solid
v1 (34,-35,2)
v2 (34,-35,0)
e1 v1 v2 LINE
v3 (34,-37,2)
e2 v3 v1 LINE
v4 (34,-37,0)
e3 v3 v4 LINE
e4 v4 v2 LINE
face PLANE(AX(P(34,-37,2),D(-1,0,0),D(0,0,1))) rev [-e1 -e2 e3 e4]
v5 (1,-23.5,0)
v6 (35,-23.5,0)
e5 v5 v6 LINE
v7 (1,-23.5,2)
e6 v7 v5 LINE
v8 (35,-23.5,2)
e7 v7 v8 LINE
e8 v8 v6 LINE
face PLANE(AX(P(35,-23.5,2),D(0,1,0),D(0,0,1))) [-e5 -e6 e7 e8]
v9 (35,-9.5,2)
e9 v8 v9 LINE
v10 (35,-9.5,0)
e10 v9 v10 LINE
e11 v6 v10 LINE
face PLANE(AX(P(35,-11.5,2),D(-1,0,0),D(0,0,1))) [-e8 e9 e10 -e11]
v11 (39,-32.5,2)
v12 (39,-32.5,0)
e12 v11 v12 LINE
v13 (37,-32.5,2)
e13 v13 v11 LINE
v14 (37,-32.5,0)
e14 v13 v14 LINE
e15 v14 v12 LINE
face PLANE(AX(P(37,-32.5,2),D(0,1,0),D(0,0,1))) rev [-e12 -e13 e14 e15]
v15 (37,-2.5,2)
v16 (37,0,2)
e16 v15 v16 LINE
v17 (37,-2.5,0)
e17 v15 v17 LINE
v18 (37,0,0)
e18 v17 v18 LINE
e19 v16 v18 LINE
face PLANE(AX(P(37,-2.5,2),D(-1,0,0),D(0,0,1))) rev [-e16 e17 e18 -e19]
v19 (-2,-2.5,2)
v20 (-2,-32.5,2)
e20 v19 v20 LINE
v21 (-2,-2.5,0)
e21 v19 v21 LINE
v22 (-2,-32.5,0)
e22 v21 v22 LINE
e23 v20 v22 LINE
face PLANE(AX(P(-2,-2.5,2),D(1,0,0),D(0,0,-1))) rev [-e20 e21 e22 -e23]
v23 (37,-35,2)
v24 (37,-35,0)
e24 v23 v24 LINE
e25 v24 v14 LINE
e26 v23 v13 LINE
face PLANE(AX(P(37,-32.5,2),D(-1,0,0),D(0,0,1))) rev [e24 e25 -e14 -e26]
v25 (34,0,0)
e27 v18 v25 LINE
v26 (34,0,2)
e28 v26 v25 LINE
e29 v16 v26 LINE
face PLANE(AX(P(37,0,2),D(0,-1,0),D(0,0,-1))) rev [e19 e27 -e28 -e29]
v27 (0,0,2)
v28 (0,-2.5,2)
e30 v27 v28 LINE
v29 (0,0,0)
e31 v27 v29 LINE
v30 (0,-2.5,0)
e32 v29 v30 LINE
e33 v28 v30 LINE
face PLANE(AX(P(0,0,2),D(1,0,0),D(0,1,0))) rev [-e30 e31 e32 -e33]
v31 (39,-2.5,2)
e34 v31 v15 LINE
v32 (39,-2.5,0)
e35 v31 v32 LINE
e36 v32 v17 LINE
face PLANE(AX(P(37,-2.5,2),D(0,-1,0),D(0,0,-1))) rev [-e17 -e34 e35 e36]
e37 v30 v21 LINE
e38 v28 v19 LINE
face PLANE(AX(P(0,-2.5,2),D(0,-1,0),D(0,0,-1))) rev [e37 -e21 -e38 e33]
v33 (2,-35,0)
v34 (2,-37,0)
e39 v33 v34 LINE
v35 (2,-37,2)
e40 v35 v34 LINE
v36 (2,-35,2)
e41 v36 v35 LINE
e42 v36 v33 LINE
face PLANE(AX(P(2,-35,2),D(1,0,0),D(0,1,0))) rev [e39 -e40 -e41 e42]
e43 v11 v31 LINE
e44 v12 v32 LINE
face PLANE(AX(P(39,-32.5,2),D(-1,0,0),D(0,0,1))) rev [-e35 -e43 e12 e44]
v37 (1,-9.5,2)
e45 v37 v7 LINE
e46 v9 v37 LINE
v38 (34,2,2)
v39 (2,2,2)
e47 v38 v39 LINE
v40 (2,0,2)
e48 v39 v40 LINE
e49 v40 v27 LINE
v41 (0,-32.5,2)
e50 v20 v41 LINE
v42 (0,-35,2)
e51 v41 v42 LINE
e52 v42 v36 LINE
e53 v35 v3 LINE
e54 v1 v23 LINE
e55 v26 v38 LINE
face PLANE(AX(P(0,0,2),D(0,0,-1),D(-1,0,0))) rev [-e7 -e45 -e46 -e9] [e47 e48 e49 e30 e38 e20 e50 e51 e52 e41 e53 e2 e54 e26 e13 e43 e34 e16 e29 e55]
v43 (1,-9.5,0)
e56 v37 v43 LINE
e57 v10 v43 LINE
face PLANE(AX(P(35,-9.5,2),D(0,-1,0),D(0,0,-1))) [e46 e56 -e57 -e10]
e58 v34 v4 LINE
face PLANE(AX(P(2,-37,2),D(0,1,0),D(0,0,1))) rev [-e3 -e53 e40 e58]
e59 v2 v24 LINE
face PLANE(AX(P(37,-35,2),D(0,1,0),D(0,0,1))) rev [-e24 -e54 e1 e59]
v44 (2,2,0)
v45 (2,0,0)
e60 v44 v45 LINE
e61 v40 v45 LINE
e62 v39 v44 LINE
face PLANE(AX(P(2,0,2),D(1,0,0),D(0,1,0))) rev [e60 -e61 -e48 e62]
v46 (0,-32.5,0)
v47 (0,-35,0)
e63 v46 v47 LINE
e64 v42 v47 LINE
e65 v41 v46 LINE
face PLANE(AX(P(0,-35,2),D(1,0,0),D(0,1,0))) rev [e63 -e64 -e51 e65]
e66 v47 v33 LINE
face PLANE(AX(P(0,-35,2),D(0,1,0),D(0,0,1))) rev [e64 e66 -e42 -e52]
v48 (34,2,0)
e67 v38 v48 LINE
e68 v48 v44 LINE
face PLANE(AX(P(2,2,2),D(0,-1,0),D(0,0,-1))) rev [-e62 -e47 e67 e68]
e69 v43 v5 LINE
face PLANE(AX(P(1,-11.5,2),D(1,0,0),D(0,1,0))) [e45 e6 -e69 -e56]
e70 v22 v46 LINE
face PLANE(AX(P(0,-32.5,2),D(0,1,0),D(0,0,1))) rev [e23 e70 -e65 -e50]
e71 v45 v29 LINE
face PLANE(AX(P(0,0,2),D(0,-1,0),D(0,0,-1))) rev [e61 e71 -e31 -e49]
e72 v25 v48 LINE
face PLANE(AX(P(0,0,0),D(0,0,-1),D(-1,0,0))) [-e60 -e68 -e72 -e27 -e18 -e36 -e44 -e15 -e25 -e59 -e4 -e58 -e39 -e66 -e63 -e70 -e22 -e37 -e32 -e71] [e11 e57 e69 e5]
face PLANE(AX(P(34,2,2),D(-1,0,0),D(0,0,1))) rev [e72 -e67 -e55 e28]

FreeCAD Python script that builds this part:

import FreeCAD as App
import Part
import Sketcher
from FreeCAD import Vector
Q = App.Units.Quantity


def add_polygon(sketch, points):
    """Adds a closed chain of lines whose ends are joined by coincident constraints."""
    first, n = sketch.GeometryCount, len(points)
    for a, b in zip(points, points[1:] + points[:1]):
        sketch.addGeometry(Part.LineSegment(App.Vector(*a, 0), App.Vector(*b, 0)), False)
    for i in range(n):
        sketch.addConstraint(Sketcher.Constraint("Coincident", first + i, 2, first + (i + 1) % n, 1))

doc = App.newDocument("Part")
params = doc.addObject("Spreadsheet::Sheet", "Params")
for row, (alias, value) in enumerate([
    ("sketch1_width", "2 mm"),
    ("sketch1_width2", "32 mm"),
    ("sketch1_width3", "3 mm"),
    ("sketch1_width4", "34 mm"),
    ("sketch1_height", "30 mm"),
    ("pad1_length", "2 mm"),
], start=1):
    params.set(f"A{row}", alias)
    params.set(f"B{row}", "=" + value)
    params.setAlias(f"B{row}", alias)

body = doc.addObject("PartDesign::Body", "Body")

sketch1 = body.newObject("Sketcher::SketchObject", "Sketch")
sketch1.AttachmentSupport = (doc.getObject("XY_Plane"), [""])
sketch1.MapMode = "FlatFace"
add_polygon(sketch1, [(0, -35), (2, -35), (2, -37), (34, -37), (34, -35), (37, -35), (37, -32.5), (39, -32.5), (39, -2.5), (37, -2.5), (37, 0), (34, 0), (34, 2), (2, 2), (2, 0), (0, 0), (0, -2.5), (-2, -2.5), (-2, -32.5), (0, -32.5)])
add_polygon(sketch1, [(35, -23.5), (1, -23.5), (1, -9.5), (35, -9.5)])
sketch1.addConstraint([
    Sketcher.Constraint("Horizontal", 0),
    Sketcher.Constraint("Vertical", 1),
    Sketcher.Constraint("Horizontal", 2),
    Sketcher.Constraint("Vertical", 3),
    Sketcher.Constraint("Horizontal", 4),
    Sketcher.Constraint("Vertical", 5),
    Sketcher.Constraint("Horizontal", 6),
    Sketcher.Constraint("Vertical", 7),
    Sketcher.Constraint("Horizontal", 8),
    Sketcher.Constraint("Vertical", 9),
    Sketcher.Constraint("Horizontal", 10),
    Sketcher.Constraint("Vertical", 11),
    Sketcher.Constraint("Horizontal", 12),
    Sketcher.Constraint("Vertical", 13),
    Sketcher.Constraint("Horizontal", 14),
    Sketcher.Constraint("Vertical", 15),
    Sketcher.Constraint("Horizontal", 16),
    Sketcher.Constraint("Vertical", 17),
    Sketcher.Constraint("Horizontal", 18),
    Sketcher.Constraint("Vertical", 19),
    Sketcher.Constraint("Horizontal", 20),
    Sketcher.Constraint("Vertical", 21),
    Sketcher.Constraint("Horizontal", 22),
    Sketcher.Constraint("Vertical", 23),
    Sketcher.Constraint("Coincident", 14, 2, -1, 1),
    Sketcher.Constraint("PointOnObject", 9, 2, -1),
    Sketcher.Constraint("PointOnObject", 18, 2, -2),
    Sketcher.Constraint("Horizontal", 0, 2, 3, 2),
    Sketcher.Constraint("Horizontal", 8, 2, 15, 2),
    Sketcher.Constraint("Horizontal", 6, 2, 17, 2),
    Sketcher.Constraint("Vertical", 5, 2, 8, 2),
    Sketcher.Constraint("Vertical", 3, 2, 10, 2),
    Sketcher.Constraint("Vertical", 1, 2, 12, 2),
    Sketcher.Constraint("Equal", 0, 6),
    Sketcher.Constraint("Equal", 14, 16),
    Sketcher.Constraint("Equal", 18, 1),
    Sketcher.Constraint("Equal", 5, 9),
    Sketcher.Constraint("Equal", 3, 11),
    Sketcher.Constraint("DistanceX", 0, 1, 0, 2, Q("2 mm")),
    Sketcher.Constraint("DistanceX", 2, 1, 2, 2, Q("32 mm")),
    Sketcher.Constraint("DistanceX", 4, 1, 4, 2, Q("3 mm")),
    Sketcher.Constraint("DistanceX", 20, 2, 20, 1, Q("34 mm")),
    Sketcher.Constraint("DistanceY", 7, 1, 7, 2, Q("30 mm")),
    Sketcher.Constraint("DistanceY", 21, 1, 21, 2, Q("14 mm")),
    Sketcher.Constraint("DistanceY", 5, 1, 5, 2, Q("2.5 mm")),
    Sketcher.Constraint("DistanceX", -1, 1, 20, 2, Q("1 mm")),
    Sketcher.Constraint("DistanceY", 18, 2, 20, 2, Q("9 mm")),
])
sketch1.setExpression("Constraints[62]", "Params.sketch1_width")
sketch1.setExpression("Constraints[63]", "Params.sketch1_width2")
sketch1.setExpression("Constraints[64]", "Params.sketch1_width3")
sketch1.setExpression("Constraints[65]", "Params.sketch1_width4")
sketch1.setExpression("Constraints[66]", "Params.sketch1_height")
pad1 = body.newObject("PartDesign::Pad", "Pad")
pad1.Profile = sketch1
pad1.setExpression("Length", "Params.pad1_length")

doc.recompute()
